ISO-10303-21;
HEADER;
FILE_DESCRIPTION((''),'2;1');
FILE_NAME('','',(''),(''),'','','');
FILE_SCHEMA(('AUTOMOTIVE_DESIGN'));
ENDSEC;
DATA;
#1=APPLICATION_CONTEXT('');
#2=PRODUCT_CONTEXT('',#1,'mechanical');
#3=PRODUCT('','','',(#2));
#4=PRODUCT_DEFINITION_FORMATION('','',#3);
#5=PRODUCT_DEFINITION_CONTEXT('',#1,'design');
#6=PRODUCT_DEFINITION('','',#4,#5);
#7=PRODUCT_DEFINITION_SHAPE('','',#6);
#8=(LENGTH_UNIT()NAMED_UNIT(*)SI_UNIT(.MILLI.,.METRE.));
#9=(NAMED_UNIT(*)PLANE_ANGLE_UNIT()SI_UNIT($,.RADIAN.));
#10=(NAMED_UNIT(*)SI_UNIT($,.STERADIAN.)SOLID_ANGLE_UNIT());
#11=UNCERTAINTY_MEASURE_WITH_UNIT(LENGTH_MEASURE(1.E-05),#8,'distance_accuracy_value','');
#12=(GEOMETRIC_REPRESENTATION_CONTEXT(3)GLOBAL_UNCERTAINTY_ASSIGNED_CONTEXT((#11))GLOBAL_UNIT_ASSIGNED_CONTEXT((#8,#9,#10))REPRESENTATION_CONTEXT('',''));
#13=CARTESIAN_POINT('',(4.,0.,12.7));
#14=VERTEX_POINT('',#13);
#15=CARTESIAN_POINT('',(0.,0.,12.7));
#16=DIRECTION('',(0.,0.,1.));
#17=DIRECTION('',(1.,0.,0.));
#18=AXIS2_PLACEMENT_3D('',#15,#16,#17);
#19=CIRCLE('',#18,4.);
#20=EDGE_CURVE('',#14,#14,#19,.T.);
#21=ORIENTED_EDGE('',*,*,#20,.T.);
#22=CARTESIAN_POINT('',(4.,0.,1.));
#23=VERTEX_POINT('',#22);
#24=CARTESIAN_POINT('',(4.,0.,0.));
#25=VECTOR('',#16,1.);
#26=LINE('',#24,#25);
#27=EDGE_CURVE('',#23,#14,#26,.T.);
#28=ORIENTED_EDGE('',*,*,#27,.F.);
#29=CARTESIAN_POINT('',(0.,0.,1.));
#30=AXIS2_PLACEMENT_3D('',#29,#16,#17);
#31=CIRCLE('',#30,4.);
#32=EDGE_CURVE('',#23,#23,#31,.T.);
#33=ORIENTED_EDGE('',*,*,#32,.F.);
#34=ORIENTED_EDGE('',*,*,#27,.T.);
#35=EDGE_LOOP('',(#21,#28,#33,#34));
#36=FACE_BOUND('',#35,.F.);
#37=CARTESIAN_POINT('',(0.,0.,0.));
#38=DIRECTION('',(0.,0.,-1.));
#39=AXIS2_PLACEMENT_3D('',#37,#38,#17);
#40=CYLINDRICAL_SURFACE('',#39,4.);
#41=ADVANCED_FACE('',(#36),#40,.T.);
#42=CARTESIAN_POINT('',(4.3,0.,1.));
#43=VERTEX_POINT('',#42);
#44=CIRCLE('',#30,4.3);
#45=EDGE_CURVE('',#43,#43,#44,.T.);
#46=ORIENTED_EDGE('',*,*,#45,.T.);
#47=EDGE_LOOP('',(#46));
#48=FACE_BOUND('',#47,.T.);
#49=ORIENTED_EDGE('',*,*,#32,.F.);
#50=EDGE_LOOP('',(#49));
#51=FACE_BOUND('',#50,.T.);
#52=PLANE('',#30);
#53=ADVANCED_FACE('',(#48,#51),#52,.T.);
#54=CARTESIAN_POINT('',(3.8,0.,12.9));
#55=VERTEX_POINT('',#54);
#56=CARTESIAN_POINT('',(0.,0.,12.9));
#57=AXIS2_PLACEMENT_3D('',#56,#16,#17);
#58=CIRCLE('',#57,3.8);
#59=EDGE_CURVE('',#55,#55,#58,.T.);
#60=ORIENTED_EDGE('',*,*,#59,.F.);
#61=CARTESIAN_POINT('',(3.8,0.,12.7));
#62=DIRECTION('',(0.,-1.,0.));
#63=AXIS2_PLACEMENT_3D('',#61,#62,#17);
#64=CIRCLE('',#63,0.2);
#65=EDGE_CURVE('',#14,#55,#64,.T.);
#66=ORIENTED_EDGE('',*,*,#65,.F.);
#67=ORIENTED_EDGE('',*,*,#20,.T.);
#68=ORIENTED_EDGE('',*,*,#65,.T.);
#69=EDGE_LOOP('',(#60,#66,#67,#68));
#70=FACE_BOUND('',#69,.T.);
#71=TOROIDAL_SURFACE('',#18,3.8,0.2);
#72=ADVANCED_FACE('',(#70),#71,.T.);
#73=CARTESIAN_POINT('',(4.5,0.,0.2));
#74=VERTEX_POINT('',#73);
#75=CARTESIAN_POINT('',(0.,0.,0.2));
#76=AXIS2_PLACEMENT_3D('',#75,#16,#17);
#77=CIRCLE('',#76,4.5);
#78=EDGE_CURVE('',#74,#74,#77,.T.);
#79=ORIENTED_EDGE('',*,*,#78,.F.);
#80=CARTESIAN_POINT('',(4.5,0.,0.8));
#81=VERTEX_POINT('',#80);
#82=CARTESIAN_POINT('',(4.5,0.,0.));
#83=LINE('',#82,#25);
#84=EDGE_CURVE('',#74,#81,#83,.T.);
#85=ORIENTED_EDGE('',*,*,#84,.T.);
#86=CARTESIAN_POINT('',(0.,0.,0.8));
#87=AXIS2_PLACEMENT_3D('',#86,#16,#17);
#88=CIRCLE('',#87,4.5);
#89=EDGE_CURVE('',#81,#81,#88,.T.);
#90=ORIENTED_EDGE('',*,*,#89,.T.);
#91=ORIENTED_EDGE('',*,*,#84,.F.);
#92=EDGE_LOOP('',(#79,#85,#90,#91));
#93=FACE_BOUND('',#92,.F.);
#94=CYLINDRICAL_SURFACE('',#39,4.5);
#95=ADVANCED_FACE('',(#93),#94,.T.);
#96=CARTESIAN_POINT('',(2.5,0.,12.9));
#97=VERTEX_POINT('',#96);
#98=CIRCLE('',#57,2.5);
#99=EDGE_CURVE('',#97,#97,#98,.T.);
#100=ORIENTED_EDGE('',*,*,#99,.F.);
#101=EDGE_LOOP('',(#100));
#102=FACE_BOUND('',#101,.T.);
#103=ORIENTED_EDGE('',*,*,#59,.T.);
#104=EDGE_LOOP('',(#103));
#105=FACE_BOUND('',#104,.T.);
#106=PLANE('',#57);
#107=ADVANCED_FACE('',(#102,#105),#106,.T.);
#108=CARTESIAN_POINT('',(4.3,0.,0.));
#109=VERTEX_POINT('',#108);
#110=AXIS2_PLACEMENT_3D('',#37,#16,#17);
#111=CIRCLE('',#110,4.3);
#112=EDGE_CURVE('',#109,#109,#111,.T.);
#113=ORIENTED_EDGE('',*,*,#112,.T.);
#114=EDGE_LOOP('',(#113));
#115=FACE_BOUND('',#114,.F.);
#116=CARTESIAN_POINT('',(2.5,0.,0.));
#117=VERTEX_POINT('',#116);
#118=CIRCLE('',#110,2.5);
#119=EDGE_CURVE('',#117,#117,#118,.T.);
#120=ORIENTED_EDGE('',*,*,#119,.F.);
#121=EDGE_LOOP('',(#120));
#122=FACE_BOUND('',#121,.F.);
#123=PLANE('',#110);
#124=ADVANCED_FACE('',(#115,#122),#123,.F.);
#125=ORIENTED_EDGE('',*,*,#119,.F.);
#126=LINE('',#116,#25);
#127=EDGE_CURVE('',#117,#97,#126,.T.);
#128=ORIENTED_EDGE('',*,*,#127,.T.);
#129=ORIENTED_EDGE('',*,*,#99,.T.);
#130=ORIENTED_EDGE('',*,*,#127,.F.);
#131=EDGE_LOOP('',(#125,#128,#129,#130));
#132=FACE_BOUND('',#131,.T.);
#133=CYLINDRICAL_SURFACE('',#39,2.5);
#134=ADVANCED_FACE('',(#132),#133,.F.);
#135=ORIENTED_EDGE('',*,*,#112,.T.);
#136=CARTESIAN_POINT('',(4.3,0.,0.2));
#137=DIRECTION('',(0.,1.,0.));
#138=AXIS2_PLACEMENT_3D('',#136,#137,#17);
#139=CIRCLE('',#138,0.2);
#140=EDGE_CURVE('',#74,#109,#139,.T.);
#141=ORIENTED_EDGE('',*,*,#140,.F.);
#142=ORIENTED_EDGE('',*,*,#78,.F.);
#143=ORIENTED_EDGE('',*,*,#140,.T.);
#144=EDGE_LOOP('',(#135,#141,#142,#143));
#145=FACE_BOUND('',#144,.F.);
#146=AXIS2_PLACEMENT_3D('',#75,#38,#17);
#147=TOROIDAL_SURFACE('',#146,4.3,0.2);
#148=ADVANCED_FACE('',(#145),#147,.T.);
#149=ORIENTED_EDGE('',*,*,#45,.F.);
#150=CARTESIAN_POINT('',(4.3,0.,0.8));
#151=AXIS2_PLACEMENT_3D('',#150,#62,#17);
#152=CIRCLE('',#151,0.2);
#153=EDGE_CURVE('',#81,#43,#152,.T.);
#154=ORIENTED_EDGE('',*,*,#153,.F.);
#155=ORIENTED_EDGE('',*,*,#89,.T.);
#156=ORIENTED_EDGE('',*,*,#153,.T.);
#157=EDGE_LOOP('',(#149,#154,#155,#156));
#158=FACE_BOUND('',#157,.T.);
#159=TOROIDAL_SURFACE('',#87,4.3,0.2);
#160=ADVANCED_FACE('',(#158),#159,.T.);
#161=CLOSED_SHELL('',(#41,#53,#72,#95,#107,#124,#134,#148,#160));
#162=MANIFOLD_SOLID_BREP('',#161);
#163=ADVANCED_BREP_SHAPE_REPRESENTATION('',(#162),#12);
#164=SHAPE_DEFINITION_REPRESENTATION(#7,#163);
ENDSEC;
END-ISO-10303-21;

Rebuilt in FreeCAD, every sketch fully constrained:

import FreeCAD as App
import Part
import Sketcher
from FreeCAD import Vector


def edges_at(feature, points):
    """Names of the edges that pass closest to the given points."""
    edges = feature.Shape.Edges
    near = lambda p: min(range(len(edges)), key=lambda i: edges[i].distToShape(Part.Vertex(*p))[0])
    return sorted({f"Edge{near(p) + 1}" for p in points})

doc = App.newDocument("Part")
body = doc.addObject("PartDesign::Body", "Body")

# Sketch on XY plane
sketch1 = body.newObject("Sketcher::SketchObject", "Sketch")
sketch1.AttachmentSupport = (doc.getObject("XY_Plane"), [""])
sketch1.MapMode = "FlatFace"
sketch1.addGeometry([
    Part.Circle(Vector(0, 0, 0), Vector(0, 0, 1), 4.5),
    Part.Circle(Vector(0, 0, 0), Vector(0, 0, 1), 4),
], False)
sketch1.addConstraint([
    Sketcher.Constraint("Coincident", 0, 3, -1, 1),
    Sketcher.Constraint("Coincident", 1, 3, -1, 1),
    Sketcher.Constraint("Diameter", 0, 9.0),
    Sketcher.Constraint("Diameter", 1, 8.0),
])
pad1 = body.newObject("PartDesign::Pad", "Pad")
pad1.Profile = sketch1
pad1.Length = 1

# Sketch on XY plane
sketch2 = body.newObject("Sketcher::SketchObject", "Sketch001")
sketch2.AttachmentSupport = (doc.getObject("XY_Plane"), [""])
sketch2.MapMode = "FlatFace"
sketch2.addGeometry([
    Part.Circle(Vector(0, 0, 0), Vector(0, 0, 1), 4),
    Part.Circle(Vector(0, 0, 0), Vector(0, 0, 1), 2.5),
], False)
sketch2.addConstraint([
    Sketcher.Constraint("Coincident", 0, 3, -1, 1),
    Sketcher.Constraint("Coincident", 1, 3, -1, 1),
    Sketcher.Constraint("Diameter", 0, 8.0),
    Sketcher.Constraint("Diameter", 1, 5.0),
])
pad2 = body.newObject("PartDesign::Pad", "Pad001")
pad2.Profile = sketch2
pad2.Length = 12.9
doc.recompute()

fillet = body.newObject("PartDesign::Fillet", "Fillet")
fillet.Base = (pad2, edges_at(pad2, [(-4.5, 0, 0)]))
fillet.Radius = 0.2
doc.recompute()

fillet2 = body.newObject("PartDesign::Fillet", "Fillet001")
fillet2.Base = (fillet, edges_at(fillet, [(-4.5, 0, 1)]))
fillet2.Radius = 0.2
doc.recompute()

fillet3 = body.newObject("PartDesign::Fillet", "Fillet002")
fillet3.Base = (fillet2, edges_at(fillet2, [(-4, 0, 12.9)]))
fillet3.Radius = 0.2

doc.recompute()
